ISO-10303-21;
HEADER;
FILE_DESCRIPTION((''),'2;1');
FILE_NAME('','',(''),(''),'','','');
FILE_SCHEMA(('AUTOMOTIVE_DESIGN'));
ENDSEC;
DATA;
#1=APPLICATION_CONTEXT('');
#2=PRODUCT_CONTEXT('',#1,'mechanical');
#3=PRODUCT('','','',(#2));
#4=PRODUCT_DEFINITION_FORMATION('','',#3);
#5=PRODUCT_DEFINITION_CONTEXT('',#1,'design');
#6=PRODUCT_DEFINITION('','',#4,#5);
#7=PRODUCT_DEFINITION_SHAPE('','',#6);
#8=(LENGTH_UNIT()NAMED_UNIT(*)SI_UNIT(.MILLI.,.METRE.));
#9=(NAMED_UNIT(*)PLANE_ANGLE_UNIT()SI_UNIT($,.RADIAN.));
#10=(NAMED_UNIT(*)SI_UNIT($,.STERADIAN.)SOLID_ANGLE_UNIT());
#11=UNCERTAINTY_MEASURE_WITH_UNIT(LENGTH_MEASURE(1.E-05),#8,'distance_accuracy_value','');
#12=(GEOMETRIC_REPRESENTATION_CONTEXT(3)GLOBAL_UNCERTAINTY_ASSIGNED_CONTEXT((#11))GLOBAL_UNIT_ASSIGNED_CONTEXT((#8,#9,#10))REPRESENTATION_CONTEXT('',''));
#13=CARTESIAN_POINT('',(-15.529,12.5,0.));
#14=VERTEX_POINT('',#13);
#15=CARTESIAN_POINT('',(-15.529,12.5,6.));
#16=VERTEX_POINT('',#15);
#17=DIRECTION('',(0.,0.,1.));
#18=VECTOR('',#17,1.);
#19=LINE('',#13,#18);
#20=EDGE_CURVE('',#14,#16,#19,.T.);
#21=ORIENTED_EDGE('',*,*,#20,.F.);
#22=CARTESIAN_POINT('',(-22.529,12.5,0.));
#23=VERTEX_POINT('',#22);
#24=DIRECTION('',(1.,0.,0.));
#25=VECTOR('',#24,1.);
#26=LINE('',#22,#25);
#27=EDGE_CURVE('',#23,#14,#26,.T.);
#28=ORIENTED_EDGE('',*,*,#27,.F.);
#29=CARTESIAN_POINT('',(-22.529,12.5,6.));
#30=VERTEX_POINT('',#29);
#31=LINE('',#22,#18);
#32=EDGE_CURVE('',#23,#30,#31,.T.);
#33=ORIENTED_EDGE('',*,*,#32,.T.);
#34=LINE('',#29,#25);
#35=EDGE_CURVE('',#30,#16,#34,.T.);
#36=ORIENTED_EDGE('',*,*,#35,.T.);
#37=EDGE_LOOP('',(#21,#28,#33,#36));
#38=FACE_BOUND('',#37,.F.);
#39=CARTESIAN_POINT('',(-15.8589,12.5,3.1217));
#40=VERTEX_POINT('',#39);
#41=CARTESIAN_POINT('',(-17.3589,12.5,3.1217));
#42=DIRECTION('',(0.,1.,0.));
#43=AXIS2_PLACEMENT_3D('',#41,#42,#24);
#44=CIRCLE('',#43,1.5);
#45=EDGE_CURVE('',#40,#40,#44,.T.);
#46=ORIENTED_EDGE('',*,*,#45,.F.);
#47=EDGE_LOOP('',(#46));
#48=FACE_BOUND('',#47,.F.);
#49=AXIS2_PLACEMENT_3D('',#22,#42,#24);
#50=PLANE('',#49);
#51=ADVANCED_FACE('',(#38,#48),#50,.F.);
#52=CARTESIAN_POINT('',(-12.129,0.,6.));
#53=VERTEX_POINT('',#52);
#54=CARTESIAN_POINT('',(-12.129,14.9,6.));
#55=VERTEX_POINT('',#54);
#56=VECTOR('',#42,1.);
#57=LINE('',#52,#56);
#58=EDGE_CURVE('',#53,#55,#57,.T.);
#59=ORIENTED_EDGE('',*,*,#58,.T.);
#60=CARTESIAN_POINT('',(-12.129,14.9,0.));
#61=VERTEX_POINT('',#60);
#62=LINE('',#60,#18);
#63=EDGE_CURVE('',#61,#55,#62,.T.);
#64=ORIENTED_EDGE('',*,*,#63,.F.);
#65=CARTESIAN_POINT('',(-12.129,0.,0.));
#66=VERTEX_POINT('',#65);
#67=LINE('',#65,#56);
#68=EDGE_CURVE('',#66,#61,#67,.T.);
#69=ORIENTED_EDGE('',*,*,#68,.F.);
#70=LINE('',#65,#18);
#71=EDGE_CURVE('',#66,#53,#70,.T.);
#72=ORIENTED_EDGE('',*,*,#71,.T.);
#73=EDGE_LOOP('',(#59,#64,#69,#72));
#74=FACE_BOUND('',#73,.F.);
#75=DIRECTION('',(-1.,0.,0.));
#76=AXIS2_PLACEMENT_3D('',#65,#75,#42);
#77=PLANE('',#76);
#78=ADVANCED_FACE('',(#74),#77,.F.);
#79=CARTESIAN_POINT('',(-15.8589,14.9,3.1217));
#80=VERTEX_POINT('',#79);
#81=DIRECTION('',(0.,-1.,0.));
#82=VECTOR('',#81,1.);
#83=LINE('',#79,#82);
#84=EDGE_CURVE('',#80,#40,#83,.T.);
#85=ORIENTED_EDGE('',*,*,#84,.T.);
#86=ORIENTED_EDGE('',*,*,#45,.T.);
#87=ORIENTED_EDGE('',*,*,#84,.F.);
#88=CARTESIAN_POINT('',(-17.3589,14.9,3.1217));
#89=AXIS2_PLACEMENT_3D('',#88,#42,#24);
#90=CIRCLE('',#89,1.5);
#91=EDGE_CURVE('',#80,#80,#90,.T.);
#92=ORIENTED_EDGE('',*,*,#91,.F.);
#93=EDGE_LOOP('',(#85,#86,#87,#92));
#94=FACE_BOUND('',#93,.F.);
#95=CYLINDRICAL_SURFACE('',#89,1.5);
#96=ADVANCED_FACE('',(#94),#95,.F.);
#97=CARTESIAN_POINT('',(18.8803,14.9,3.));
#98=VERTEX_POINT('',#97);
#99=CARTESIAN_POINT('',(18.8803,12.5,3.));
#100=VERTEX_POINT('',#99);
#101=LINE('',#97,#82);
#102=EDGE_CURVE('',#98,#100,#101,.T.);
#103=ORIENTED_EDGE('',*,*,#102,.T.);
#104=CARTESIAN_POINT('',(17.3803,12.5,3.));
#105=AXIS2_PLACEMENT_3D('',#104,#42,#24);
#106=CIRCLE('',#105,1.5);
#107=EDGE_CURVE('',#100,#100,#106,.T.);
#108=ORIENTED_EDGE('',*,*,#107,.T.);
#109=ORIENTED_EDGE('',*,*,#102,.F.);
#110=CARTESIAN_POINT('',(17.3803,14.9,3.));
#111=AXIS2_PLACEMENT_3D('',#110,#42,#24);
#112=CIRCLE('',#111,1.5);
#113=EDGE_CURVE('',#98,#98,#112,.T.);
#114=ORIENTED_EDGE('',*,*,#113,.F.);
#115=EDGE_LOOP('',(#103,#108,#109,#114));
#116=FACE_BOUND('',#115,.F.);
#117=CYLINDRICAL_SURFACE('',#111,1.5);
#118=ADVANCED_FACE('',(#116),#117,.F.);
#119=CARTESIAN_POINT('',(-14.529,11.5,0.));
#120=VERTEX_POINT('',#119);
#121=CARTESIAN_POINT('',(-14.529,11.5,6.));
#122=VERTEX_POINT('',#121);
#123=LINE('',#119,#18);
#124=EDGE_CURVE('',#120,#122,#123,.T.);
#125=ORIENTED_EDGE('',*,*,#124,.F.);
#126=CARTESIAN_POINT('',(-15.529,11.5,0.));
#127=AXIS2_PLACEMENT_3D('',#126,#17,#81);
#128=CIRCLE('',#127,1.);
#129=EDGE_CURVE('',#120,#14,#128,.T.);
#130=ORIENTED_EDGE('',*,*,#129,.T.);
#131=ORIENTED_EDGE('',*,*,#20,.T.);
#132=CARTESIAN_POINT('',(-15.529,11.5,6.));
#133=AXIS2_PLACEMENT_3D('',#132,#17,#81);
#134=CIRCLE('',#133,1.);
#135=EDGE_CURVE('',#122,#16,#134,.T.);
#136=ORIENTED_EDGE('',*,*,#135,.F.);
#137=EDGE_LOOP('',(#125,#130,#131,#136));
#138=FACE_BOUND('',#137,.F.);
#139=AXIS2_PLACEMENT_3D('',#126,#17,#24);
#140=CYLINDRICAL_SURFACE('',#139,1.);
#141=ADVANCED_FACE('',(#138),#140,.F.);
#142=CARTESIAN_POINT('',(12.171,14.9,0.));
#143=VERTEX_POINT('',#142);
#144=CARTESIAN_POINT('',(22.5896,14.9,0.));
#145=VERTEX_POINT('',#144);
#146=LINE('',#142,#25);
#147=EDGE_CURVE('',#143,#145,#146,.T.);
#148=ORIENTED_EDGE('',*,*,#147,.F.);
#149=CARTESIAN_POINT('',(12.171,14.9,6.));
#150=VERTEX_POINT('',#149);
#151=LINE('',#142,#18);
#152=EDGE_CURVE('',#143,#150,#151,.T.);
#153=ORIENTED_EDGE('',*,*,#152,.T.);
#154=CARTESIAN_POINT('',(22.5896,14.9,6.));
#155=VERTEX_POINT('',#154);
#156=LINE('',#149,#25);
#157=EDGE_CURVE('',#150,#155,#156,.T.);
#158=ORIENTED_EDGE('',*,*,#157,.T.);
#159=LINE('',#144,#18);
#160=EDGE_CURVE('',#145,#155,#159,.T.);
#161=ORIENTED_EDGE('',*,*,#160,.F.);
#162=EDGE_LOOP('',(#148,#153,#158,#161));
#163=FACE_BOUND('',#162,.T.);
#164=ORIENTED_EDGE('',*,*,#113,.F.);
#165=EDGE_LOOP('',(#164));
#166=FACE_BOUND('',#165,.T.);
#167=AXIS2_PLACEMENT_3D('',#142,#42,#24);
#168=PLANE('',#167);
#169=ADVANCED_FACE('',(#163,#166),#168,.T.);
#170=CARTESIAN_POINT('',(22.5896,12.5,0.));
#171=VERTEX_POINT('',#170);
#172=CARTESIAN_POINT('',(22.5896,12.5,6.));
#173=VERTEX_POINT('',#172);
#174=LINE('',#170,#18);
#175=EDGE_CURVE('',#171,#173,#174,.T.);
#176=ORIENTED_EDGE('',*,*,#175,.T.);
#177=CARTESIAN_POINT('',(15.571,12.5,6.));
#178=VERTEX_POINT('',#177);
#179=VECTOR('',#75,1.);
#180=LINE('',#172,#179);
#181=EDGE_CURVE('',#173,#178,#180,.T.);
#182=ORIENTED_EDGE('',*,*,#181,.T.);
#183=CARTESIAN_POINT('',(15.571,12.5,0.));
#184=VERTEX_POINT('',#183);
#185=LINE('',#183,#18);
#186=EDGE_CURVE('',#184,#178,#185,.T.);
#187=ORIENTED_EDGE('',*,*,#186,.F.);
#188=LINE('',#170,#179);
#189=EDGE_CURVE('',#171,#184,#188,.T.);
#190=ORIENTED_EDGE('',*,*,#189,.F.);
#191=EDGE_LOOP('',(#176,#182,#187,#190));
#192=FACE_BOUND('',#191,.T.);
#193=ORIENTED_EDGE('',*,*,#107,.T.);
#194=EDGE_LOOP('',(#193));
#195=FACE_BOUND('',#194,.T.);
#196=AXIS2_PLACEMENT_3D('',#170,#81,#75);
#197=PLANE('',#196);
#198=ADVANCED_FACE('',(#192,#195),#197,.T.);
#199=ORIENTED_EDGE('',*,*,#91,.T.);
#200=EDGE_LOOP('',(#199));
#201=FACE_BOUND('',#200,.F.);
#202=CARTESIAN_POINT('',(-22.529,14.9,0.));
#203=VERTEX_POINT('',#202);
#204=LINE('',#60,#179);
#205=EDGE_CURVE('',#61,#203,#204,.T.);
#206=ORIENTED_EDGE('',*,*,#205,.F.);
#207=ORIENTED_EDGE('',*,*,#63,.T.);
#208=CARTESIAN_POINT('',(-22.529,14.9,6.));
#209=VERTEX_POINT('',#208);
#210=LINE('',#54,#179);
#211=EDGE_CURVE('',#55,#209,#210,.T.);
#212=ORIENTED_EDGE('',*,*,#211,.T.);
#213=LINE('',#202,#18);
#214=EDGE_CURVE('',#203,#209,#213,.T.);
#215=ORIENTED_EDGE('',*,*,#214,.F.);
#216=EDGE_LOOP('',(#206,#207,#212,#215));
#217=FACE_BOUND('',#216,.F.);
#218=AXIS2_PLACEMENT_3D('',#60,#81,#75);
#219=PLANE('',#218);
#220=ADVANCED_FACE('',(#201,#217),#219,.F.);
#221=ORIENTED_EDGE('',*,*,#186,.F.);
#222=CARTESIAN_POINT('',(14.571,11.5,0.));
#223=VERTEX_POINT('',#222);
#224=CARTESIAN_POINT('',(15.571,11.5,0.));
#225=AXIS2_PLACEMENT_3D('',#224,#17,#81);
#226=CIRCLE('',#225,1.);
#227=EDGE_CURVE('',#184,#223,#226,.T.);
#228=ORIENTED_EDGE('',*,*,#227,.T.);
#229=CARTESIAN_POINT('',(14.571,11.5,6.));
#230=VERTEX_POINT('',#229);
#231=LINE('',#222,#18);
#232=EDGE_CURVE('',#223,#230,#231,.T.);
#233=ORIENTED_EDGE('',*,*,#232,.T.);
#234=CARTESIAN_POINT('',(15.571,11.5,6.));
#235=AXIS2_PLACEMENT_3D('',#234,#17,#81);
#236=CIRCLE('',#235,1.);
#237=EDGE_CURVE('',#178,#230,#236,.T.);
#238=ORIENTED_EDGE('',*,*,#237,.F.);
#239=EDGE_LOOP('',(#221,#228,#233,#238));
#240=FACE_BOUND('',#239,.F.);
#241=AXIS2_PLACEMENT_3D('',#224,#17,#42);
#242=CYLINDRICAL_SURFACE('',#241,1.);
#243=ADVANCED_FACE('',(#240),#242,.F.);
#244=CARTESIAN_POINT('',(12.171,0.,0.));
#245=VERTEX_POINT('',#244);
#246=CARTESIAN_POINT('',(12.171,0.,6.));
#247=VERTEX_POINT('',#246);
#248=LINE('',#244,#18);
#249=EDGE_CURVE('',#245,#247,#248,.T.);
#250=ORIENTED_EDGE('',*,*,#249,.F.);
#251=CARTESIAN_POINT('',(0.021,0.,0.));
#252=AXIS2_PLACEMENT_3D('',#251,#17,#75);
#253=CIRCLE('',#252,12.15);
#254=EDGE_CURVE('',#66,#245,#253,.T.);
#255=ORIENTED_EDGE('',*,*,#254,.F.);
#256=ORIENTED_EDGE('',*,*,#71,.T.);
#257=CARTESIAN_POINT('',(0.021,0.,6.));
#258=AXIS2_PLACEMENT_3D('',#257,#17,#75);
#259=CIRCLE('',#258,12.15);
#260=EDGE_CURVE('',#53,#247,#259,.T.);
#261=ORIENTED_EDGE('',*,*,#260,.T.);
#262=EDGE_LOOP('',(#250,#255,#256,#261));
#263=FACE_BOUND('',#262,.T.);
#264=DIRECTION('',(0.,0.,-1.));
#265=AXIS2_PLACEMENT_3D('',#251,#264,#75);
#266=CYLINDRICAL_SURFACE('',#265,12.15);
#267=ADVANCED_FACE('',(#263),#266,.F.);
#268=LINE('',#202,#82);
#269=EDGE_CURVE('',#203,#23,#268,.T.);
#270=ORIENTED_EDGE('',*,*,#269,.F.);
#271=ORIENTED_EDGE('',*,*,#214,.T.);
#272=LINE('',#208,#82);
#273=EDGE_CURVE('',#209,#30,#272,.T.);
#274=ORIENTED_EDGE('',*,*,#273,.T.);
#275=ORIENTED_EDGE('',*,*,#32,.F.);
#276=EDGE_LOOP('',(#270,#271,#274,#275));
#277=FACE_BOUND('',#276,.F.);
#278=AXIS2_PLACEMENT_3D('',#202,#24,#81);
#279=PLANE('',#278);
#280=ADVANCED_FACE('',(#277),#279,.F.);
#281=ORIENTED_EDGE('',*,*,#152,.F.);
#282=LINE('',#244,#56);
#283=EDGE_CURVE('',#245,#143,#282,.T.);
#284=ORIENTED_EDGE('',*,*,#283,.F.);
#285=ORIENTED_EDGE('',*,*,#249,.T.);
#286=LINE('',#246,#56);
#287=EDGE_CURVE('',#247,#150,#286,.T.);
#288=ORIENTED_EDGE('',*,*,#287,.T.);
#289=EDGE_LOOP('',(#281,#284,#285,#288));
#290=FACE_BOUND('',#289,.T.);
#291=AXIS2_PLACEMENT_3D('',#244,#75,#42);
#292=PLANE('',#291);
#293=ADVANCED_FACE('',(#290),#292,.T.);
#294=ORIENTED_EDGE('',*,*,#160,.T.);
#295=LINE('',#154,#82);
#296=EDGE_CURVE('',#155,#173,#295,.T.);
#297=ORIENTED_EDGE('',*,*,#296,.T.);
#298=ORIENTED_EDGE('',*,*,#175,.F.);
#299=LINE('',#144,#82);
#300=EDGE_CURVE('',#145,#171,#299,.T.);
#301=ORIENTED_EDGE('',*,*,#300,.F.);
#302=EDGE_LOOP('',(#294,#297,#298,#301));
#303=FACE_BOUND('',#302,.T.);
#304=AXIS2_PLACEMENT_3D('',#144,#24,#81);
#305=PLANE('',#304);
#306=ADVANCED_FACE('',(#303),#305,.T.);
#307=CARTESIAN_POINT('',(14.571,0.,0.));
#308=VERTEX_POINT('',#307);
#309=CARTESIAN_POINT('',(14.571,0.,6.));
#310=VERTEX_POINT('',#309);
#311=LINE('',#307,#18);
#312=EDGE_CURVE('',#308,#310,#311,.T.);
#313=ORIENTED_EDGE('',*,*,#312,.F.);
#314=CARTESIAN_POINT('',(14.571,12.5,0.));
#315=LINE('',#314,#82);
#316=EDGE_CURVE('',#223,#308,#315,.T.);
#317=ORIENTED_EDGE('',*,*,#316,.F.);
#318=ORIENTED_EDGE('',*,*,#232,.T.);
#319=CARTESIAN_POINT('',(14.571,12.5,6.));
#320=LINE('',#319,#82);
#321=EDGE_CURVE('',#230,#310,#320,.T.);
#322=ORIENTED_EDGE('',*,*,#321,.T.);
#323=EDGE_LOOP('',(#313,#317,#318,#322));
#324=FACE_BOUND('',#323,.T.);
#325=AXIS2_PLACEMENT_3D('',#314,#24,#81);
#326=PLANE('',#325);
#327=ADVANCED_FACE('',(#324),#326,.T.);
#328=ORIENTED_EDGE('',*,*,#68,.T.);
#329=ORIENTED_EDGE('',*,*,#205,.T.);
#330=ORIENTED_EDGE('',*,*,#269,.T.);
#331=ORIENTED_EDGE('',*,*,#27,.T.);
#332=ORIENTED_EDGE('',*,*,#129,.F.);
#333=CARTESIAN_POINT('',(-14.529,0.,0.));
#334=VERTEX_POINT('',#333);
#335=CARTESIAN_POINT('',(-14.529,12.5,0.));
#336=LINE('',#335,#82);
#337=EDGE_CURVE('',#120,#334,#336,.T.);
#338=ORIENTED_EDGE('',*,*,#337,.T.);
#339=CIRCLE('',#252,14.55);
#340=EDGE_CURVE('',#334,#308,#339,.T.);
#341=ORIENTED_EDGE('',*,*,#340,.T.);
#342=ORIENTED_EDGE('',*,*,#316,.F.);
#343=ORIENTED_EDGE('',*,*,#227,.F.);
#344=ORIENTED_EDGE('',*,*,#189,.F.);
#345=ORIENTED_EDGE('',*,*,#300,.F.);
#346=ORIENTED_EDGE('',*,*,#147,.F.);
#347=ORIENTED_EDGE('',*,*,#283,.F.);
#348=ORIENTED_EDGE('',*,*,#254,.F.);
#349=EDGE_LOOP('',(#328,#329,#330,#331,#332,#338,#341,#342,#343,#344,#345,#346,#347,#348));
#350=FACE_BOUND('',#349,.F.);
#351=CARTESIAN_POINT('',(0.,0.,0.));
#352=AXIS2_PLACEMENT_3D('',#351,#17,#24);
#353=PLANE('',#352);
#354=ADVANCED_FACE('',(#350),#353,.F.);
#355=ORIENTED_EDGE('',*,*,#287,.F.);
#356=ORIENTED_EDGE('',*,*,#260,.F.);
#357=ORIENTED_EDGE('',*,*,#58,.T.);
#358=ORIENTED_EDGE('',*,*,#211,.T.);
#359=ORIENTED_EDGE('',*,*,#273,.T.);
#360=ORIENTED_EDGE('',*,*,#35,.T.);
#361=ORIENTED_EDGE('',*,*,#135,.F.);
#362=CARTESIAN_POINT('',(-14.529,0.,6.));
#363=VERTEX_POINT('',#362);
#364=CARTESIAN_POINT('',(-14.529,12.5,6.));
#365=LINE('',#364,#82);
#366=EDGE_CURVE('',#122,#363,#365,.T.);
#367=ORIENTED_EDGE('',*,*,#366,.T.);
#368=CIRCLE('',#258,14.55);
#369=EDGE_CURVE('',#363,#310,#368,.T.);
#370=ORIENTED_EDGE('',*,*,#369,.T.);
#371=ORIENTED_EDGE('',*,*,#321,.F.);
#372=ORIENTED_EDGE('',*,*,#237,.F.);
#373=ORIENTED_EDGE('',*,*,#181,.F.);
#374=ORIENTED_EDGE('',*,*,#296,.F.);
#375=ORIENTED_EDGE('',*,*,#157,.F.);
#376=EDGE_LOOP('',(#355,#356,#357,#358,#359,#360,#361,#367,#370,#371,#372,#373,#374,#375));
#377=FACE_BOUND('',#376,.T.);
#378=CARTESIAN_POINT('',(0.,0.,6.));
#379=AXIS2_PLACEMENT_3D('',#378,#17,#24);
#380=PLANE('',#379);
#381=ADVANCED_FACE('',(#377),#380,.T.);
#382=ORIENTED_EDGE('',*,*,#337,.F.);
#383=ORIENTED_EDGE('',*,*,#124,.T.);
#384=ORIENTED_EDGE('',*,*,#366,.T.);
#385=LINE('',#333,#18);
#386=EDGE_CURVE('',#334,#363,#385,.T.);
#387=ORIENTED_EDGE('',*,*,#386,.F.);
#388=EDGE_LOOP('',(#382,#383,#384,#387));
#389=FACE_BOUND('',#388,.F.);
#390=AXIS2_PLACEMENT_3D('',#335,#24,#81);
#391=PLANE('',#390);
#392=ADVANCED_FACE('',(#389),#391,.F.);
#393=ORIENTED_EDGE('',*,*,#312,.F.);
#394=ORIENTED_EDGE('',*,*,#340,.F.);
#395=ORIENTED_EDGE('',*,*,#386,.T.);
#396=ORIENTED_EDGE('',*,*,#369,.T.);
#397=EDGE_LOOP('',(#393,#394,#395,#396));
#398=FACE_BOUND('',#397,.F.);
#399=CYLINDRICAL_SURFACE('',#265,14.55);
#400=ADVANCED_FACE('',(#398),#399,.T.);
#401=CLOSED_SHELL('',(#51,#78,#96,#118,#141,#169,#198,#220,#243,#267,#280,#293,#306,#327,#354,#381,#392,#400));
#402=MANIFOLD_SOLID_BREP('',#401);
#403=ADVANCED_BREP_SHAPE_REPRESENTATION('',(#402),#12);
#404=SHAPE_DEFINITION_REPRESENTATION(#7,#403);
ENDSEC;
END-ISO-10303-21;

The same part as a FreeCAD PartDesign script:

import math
import FreeCAD as App
import Part
import Sketcher
from FreeCAD import Vector
Q = App.Units.Quantity


def edges_at(feature, points):
    """Names of the edges that pass closest to the given points."""
    edges = feature.Shape.Edges
    near = lambda p: min(range(len(edges)), key=lambda i: edges[i].distToShape(Part.Vertex(*p))[0])
    return sorted({f"Edge{near(p) + 1}" for p in points})

doc = App.newDocument("Part")
body = doc.addObject("PartDesign::Body", "Body")

sketch1 = body.newObject("Sketcher::SketchObject", "Sketch")
sketch1.AttachmentSupport = (doc.getObject("XY_Plane"), [""])
sketch1.MapMode = "FlatFace"
sketch1.addGeometry([
    Part.LineSegment(Vector(-22.5, 14.9, 0), Vector(-22.5, 12.5, 0)),
    Part.LineSegment(Vector(-22.5, 12.5, 0), Vector(-14.5, 12.5, 0)),
    Part.LineSegment(Vector(-14.5, 12.5, 0), Vector(-14.5, 0, 0)),
    Part.ArcOfCircle(Part.Circle(Vector(0, 0, 0), Vector(0, 0, 1), 14.6), math.radians(180), math.radians(360)),
    Part.LineSegment(Vector(14.6, 0, 0), Vector(14.6, 12.5, 0)),
    Part.LineSegment(Vector(14.6, 12.5, 0), Vector(22.6, 12.5, 0)),
    Part.LineSegment(Vector(22.6, 12.5, 0), Vector(22.6, 14.9, 0)),
    Part.LineSegment(Vector(22.6, 14.9, 0), Vector(12.2, 14.9, 0)),
    Part.LineSegment(Vector(12.2, 14.9, 0), Vector(12.2, 0, 0)),
    Part.ArcOfCircle(Part.Circle(Vector(0, 0, 0), Vector(0, 0, 1), 12.2), math.radians(180), math.radians(360)),
    Part.LineSegment(Vector(-12.1, 0, 0), Vector(-12.1, 14.9, 0)),
    Part.LineSegment(Vector(-12.1, 14.9, 0), Vector(-22.5, 14.9, 0)),
], False)
sketch1.addConstraint([
    Sketcher.Constraint("Coincident", 0, 2, 1, 1),
    Sketcher.Constraint("Coincident", 1, 2, 2, 1),
    Sketcher.Constraint("Tangent", 2, 2, 3, 1),
    Sketcher.Constraint("Tangent", 3, 2, 4, 1),
    Sketcher.Constraint("Coincident", 4, 2, 5, 1),
    Sketcher.Constraint("Coincident", 5, 2, 6, 1),
    Sketcher.Constraint("Coincident", 6, 2, 7, 1),
    Sketcher.Constraint("Coincident", 7, 2, 8, 1),
    Sketcher.Constraint("Tangent", 8, 2, 9, 2),
    Sketcher.Constraint("Tangent", 9, 1, 10, 1),
    Sketcher.Constraint("Coincident", 10, 2, 11, 1),
    Sketcher.Constraint("Coincident", 11, 2, 0, 1),
    Sketcher.Constraint("Vertical", 0),
    Sketcher.Constraint("Horizontal", 1),
    Sketcher.Constraint("Vertical", 2),
    Sketcher.Constraint("Vertical", 4),
    Sketcher.Constraint("Horizontal", 5),
    Sketcher.Constraint("Vertical", 6),
    Sketcher.Constraint("Horizontal", 7),
    Sketcher.Constraint("Vertical", 8),
    Sketcher.Constraint("Vertical", 10),
    Sketcher.Constraint("Horizontal", 11),
    Sketcher.Constraint("Coincident", 9, 3, 3, 3),
    Sketcher.Constraint("PointOnObject", 3, 3, -1),
    Sketcher.Constraint("Horizontal", 1, 2, 4, 2),
    Sketcher.Constraint("Horizontal", 7, 2, 10, 2),
    Sketcher.Constraint("Radius", 9, Q("12.15 mm")),
    Sketcher.Constraint("DistanceY", 0, 2, 0, 1, Q("2.4 mm")),
    Sketcher.Constraint("DistanceY", 8, 2, 8, 1, Q("14.9 mm")),
    Sketcher.Constraint("DistanceX", 7, 2, 4, 2, Q("2.4 mm")),
    Sketcher.Constraint("DistanceX", 1, 1, 1, 2, Q("8 mm")),
    Sketcher.Constraint("DistanceX", 5, 1, 5, 2, Q("8.0186 mm")),
    Sketcher.Constraint("DistanceX", -1, 1, 3, 3, Q("0.021 mm")),
])
pad1 = body.newObject("PartDesign::Pad", "Pad")
pad1.Profile = sketch1
pad1.Length = 6
doc.recompute()

fillet = body.newObject("PartDesign::Fillet", "Fillet")
fillet.Base = (pad1, edges_at(pad1, [(14.571, 12.5, 3)]))
fillet.Radius = 1
doc.recompute()

fillet2 = body.newObject("PartDesign::Fillet", "Fillet001")
fillet2.Base = (fillet, edges_at(fillet, [(-14.529, 12.5, 3)]))
fillet2.Radius = 1

sketch2 = body.newObject("Sketcher::SketchObject", "Sketch001")
sketch2.AttachmentSupport = (doc.getObject("XZ_Plane"), [""])
sketch2.MapMode = "FlatFace"
sketch2.AttachmentOffset = App.Placement(Vector(0, 0, -14.9), App.Rotation())
sketch2.addGeometry([
    Part.Circle(Vector(17.4, 3, 0), Vector(0, 0, 1), 1.5),
    Part.Circle(Vector(-17.4, 3.1, 0), Vector(0, 0, 1), 1.5),
], False)
sketch2.addConstraint([
    Sketcher.Constraint("Equal", 0, 1),
    Sketcher.Constraint("Diameter", 0, Q("3 mm")),
    Sketcher.Constraint("DistanceY", -1, 1, 0, 3, Q("3 mm")),
    Sketcher.Constraint("DistanceX", 1, 3, -1, 1, Q("17.359 mm")),
    Sketcher.Constraint("DistanceX", -1, 1, 0, 3, Q("17.3803 mm")),
    Sketcher.Constraint("DistanceY", -1, 1, 1, 3, Q("3.1217 mm")),
])
pocket1 = body.newObject("PartDesign::Pocket", "Pocket")
pocket1.Profile = sketch2
pocket1.Length = 10
pocket1.Reversed = True

doc.recompute()
